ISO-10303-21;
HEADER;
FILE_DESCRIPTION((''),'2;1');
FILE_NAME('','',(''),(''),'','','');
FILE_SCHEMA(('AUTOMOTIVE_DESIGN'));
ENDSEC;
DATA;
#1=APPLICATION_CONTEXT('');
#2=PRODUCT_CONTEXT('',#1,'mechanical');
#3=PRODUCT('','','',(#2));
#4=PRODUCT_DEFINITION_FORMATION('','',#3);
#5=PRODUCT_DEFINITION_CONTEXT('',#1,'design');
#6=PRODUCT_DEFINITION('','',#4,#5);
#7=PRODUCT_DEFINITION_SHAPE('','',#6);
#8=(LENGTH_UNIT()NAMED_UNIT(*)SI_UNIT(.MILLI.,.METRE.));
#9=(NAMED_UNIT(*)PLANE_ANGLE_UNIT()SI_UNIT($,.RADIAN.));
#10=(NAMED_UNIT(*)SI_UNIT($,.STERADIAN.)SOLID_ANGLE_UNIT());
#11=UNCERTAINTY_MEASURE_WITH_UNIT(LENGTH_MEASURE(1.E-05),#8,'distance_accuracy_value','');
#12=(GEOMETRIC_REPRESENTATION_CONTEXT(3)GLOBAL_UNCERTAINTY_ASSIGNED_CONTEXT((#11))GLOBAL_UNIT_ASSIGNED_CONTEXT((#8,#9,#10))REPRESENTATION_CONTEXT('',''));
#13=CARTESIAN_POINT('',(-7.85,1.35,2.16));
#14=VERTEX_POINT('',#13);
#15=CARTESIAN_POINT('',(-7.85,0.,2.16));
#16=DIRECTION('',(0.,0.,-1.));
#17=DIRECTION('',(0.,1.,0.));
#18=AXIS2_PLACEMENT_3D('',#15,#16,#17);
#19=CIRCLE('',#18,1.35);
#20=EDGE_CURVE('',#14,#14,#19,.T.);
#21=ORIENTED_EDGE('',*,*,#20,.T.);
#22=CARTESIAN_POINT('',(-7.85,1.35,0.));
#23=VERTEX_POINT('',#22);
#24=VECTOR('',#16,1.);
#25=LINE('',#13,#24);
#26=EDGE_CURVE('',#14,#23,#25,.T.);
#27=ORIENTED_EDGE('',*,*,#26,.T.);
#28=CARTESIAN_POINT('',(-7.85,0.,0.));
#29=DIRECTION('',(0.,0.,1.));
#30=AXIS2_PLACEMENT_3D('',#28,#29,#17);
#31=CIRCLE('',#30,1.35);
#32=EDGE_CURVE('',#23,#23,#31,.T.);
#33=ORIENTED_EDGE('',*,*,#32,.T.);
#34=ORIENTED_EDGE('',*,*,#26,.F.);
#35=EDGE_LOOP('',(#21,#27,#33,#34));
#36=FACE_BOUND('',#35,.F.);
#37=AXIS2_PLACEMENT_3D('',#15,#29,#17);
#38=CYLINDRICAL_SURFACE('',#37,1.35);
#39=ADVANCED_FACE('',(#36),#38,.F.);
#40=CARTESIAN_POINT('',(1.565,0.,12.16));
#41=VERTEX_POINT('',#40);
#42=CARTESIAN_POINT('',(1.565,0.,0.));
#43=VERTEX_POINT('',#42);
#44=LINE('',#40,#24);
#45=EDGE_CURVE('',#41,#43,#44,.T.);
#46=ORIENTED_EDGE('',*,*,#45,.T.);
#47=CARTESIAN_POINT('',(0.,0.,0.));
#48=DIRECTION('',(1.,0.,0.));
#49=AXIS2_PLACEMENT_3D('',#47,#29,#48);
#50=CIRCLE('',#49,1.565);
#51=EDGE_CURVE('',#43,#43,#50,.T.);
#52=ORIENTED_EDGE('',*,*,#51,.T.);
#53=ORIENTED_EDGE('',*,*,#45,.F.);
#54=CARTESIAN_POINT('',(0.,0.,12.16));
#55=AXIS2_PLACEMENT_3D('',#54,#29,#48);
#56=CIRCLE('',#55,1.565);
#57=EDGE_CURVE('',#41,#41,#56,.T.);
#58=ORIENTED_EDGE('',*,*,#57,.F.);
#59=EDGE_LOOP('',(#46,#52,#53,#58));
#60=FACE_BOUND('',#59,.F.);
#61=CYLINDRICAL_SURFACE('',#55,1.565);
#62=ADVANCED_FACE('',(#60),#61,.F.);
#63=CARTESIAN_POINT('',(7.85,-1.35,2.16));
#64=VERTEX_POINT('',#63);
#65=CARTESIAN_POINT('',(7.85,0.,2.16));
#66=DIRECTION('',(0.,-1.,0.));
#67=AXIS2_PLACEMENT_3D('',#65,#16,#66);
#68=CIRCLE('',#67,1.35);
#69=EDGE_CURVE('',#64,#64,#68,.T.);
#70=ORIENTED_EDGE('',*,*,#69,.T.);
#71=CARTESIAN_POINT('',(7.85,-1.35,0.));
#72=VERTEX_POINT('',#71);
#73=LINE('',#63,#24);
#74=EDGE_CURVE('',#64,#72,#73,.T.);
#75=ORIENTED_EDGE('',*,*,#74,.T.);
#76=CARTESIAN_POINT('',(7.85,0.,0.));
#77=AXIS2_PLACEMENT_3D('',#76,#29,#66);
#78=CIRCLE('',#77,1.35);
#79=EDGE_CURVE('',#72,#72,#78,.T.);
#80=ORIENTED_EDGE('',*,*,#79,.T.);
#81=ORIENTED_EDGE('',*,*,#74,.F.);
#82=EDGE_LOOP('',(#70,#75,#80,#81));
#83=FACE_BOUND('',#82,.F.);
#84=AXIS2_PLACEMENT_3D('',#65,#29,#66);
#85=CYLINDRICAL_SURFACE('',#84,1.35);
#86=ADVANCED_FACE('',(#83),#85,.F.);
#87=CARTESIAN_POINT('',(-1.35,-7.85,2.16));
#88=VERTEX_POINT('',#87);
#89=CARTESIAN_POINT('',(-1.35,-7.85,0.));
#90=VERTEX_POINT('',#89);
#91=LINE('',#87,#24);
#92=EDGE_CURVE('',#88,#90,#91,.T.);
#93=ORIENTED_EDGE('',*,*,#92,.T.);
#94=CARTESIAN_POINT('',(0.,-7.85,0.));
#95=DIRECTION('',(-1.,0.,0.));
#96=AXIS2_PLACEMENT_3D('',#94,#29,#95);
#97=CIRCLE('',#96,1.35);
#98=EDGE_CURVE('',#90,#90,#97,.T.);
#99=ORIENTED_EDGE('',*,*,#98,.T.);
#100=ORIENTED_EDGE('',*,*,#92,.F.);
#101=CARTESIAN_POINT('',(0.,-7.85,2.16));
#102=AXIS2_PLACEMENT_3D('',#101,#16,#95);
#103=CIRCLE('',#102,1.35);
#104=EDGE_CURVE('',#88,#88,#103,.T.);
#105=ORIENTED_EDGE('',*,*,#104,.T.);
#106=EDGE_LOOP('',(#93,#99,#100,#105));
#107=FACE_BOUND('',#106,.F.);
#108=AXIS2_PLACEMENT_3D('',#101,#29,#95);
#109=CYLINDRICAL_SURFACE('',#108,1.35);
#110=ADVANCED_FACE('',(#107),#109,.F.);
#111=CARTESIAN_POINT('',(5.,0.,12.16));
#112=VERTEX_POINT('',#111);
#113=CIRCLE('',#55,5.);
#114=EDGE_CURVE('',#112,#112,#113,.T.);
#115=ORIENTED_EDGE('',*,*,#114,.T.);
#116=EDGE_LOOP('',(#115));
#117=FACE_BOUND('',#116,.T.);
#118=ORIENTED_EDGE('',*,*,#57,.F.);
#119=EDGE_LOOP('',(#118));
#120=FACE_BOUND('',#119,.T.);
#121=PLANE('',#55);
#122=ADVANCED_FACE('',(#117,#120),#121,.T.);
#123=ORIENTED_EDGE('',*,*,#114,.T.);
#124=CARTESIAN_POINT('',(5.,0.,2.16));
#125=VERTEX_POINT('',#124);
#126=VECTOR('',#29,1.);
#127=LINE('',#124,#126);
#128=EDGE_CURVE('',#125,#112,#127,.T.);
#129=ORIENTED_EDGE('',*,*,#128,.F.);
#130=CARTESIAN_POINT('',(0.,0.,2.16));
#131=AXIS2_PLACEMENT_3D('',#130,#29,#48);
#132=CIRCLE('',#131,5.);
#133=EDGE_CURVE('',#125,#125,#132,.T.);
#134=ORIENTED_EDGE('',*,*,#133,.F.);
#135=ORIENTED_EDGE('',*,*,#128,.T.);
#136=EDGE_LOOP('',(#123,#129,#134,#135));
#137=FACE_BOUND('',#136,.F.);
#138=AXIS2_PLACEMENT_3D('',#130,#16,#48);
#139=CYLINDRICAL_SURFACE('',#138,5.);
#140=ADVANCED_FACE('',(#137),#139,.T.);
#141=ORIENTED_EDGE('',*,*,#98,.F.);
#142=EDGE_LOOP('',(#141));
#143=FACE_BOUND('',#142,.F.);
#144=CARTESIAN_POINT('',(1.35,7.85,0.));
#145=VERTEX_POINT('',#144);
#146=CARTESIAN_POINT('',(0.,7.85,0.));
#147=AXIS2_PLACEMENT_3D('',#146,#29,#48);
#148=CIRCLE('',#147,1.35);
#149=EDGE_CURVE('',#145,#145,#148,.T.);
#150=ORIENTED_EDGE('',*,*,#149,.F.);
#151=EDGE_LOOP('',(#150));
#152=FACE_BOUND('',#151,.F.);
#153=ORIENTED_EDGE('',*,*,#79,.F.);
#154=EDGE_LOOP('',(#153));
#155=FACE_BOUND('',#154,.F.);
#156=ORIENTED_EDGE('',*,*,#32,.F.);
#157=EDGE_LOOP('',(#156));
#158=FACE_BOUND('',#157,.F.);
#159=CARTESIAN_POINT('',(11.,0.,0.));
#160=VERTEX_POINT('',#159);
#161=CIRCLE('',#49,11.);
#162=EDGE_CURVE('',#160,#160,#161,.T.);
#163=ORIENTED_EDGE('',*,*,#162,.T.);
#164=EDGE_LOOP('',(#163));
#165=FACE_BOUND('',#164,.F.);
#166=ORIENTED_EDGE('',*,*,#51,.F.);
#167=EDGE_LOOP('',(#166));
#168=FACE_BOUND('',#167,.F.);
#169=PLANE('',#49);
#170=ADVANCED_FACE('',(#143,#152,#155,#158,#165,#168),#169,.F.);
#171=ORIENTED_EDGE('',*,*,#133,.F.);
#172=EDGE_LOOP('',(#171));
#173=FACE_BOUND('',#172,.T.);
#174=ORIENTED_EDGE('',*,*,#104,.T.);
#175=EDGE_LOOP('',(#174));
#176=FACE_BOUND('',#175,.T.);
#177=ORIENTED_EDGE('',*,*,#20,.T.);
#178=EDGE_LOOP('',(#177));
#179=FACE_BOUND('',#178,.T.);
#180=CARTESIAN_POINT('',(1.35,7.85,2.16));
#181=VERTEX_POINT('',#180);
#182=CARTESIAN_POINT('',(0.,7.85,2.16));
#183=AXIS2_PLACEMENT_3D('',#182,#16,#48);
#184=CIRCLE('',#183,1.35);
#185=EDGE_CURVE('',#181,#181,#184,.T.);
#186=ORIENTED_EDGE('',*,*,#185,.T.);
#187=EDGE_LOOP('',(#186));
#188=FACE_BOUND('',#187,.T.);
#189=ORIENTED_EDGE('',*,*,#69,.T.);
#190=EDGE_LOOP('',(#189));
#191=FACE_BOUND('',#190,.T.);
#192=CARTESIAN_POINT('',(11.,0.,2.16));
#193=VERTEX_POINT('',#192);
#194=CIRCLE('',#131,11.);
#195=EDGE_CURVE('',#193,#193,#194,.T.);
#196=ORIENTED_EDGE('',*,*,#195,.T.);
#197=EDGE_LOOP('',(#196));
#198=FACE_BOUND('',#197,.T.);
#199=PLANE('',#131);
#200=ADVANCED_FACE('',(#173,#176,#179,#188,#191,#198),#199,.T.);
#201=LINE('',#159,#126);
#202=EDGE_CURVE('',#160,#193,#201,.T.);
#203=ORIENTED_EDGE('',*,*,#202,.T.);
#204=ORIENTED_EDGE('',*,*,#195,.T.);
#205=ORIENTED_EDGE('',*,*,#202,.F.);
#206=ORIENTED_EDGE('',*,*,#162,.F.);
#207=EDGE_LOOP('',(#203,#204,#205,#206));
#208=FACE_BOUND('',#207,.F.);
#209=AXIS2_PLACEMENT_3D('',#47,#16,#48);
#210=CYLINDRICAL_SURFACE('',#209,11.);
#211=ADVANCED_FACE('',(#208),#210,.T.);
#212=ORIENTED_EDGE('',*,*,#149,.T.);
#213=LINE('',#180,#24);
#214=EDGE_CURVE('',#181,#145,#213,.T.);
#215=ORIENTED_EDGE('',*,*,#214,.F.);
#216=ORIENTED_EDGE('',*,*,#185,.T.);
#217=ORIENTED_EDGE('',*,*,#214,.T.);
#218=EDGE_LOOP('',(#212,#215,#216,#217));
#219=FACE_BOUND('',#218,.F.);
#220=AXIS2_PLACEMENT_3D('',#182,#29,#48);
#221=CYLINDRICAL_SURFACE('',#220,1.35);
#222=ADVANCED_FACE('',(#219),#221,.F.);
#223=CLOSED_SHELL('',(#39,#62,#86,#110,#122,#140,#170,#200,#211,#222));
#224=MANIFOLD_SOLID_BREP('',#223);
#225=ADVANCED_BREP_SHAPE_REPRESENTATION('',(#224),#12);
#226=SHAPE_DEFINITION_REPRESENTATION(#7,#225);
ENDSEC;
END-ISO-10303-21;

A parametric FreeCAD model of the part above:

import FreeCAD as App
import Part
import Sketcher
from FreeCAD import Vector
Q = App.Units.Quantity

doc = App.newDocument("Part")
body = doc.addObject("PartDesign::Body", "Body")

sketch1 = body.newObject("Sketcher::SketchObject", "Sketch")
sketch1.AttachmentSupport = (doc.getObject("XY_Plane"), [""])
sketch1.MapMode = "FlatFace"
sketch1.addGeometry(Part.Circle(Vector(0, 0, 0), Vector(0, 0, 1), 11), False)
sketch1.addConstraint(Sketcher.Constraint("Coincident", 0, 3, -1, 1))
sketch1.addConstraint(Sketcher.Constraint("Diameter", 0, Q("22 mm")))
pad1 = body.newObject("PartDesign::Pad", "Pad")
pad1.Profile = sketch1
pad1.Length = 2.16

sketch2 = body.newObject("Sketcher::SketchObject", "Sketch001")
sketch2.AttachmentSupport = (doc.getObject("XY_Plane"), [""])
sketch2.MapMode = "FlatFace"
sketch2.AttachmentOffset = App.Placement(Vector(0, 0, 2.16), App.Rotation())
sketch2.addGeometry(Part.Circle(Vector(0, 0, 0), Vector(0, 0, 1), 5), False)
sketch2.addConstraint(Sketcher.Constraint("Coincident", 0, 3, -1, 1))
sketch2.addConstraint(Sketcher.Constraint("Diameter", 0, Q("10 mm")))
pad2 = body.newObject("PartDesign::Pad", "Pad001")
pad2.Profile = sketch2
pad2.Length = 10

sketch3 = body.newObject("Sketcher::SketchObject", "Sketch002")
sketch3.AttachmentSupport = (doc.getObject("XY_Plane"), [""])
sketch3.MapMode = "FlatFace"
sketch3.AttachmentOffset = App.Placement(Vector(0, 0, 12.16), App.Rotation())
sketch3.addGeometry(Part.Circle(Vector(0, 0, 0), Vector(0, 0, 1), 1.6), False)
sketch3.addConstraint(Sketcher.Constraint("Coincident", 0, 3, -1, 1))
sketch3.addConstraint(Sketcher.Constraint("Diameter", 0, Q("3.13 mm")))
pocket1 = body.newObject("PartDesign::Pocket", "Pocket")
pocket1.Profile = sketch3
pocket1.Length = 12.16

sketch4 = body.newObject("Sketcher::SketchObject", "Sketch003")
sketch4.AttachmentSupport = (doc.getObject("XY_Plane"), [""])
sketch4.MapMode = "FlatFace"
sketch4.AttachmentOffset = App.Placement(Vector(0, 0, 2.16), App.Rotation())
sketch4.addGeometry(Part.Circle(Vector(0, 7.8, 0), Vector(0, 0, 1), 1.4), False)
sketch4.addConstraint(Sketcher.Constraint("PointOnObject", 0, 3, -2))
sketch4.addConstraint(Sketcher.Constraint("Diameter", 0, Q("2.7 mm")))
sketch4.addConstraint(Sketcher.Constraint("DistanceY", -1, 1, 0, 3, Q("7.85 mm")))
pocket2 = body.newObject("PartDesign::Pocket", "Pocket001")
pocket2.Profile = sketch4
pocket2.Length = 2.16
doc.recompute()

polarpattern = body.newObject("PartDesign::PolarPattern", "PolarPattern")
polarpattern.Originals = [pocket2]
polarpattern.Axis = (doc.getObject("Z_Axis"), [""])
polarpattern.Angle = 360
polarpattern.Occurrences = 4
body.Tip = polarpattern

doc.recompute()
